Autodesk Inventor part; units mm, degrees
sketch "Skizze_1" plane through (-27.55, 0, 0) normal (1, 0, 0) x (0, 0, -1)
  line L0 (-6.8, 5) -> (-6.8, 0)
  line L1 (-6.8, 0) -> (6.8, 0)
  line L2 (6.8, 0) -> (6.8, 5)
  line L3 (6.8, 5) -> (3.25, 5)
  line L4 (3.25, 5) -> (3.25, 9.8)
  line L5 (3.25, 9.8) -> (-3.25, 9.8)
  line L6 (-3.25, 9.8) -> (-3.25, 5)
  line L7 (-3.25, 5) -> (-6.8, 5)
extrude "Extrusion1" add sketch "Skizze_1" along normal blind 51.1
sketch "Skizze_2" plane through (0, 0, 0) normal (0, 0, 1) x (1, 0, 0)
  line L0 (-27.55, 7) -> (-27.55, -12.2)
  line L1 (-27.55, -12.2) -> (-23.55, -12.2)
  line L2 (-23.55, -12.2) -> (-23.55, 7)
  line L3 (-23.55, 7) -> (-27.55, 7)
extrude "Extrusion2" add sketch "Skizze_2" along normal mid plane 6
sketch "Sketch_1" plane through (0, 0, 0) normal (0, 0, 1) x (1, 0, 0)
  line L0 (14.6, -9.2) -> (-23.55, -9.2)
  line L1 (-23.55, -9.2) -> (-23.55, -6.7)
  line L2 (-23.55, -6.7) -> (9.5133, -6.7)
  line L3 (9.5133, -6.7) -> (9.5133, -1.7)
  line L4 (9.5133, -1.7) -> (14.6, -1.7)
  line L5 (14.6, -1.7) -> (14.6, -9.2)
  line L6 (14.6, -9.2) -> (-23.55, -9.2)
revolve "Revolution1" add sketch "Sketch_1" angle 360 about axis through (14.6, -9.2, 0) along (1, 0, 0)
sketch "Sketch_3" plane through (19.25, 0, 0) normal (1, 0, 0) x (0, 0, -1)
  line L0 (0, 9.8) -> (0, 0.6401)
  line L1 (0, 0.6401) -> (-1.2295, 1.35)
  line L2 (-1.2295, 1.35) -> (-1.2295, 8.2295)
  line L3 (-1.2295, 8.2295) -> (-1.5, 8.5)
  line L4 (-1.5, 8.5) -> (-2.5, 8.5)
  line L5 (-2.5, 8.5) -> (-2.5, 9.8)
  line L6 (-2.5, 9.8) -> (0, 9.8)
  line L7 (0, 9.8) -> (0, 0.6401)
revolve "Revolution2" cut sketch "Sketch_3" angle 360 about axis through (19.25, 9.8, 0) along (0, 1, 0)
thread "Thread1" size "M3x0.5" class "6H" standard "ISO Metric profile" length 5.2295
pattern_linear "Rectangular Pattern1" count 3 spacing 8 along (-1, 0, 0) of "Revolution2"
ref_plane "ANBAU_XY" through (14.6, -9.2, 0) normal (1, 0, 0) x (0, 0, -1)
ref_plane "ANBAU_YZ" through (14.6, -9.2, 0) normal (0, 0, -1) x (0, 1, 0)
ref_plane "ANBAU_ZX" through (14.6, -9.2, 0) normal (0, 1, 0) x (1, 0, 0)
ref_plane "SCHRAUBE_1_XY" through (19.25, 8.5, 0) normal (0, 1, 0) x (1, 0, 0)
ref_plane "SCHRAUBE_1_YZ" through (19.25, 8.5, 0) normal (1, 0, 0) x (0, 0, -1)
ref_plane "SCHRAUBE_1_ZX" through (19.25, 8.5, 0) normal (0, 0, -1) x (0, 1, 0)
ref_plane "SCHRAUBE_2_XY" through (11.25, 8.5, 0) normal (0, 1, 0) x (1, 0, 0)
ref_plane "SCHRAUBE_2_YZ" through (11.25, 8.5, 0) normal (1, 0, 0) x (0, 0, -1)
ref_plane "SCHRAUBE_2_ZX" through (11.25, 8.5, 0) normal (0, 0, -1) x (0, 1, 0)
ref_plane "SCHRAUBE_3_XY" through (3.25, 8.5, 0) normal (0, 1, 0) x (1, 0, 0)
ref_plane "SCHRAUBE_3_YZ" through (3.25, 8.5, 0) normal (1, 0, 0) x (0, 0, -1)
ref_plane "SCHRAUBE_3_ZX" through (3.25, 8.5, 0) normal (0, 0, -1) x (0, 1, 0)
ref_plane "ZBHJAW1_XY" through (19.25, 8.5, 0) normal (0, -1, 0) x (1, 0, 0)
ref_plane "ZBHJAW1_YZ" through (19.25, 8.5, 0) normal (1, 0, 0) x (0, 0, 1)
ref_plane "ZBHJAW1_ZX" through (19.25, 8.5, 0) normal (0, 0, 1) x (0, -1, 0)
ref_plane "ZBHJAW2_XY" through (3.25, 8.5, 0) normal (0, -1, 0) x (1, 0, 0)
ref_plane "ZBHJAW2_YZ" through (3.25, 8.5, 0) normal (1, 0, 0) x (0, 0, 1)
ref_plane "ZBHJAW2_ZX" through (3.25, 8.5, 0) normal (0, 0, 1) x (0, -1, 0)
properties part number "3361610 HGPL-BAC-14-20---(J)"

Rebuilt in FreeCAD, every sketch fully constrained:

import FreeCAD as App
import Part
import Sketcher

V = App.Vector
Q = App.Units.Quantity


def add_polygon(sketch, points):
    """Adds a closed chain of lines whose ends are joined by coincident constraints."""
    first, n = sketch.GeometryCount, len(points)
    for a, b in zip(points, points[1:] + points[:1]):
        sketch.addGeometry(Part.LineSegment(App.Vector(*a, 0), App.Vector(*b, 0)), False)
    for i in range(n):
        sketch.addConstraint(Sketcher.Constraint("Coincident", first + i, 2, first + (i + 1) % n, 1))

doc = App.newDocument("Part")
params = doc.addObject("Spreadsheet::Sheet", "Params")
for row, (alias, value) in enumerate([
    ("sketch1_width", "5 mm"),
    ("sketch1_width2", "4.8 mm"),
    ("sketch1_height", "13.6 mm"),
    ("sketch1_height2", "6.5 mm"),
    ("pad1_length", "51.1 mm"),
    ("sketch2_width", "4 mm"),
    ("sketch2_height", "19.2 mm"),
    ("pad2_length", "6 mm"),
    ("sketch3_height", "5 mm"),
    ("sketch3_height2", "7.5 mm"),
    ("sketch3_width", "38.15 mm"),
    ("revolution_angle", "360 deg"),
    ("sketch4_height", "1 mm"),
    ("sketch4_width", "1.3 mm"),
    ("sketch4_height2", "2.5 mm"),
    ("sketch4_width2", "9.16 mm"),
    ("groove_angle", "360 deg"),
    ("linearpattern_pitch", "8 mm"),
], start=1):
    params.set(f"A{row}", alias)
    params.set(f"B{row}", "=" + value)
    params.setAlias(f"B{row}", alias)

body = doc.addObject("PartDesign::Body", "Body")

sketch1 = body.newObject("Sketcher::SketchObject", "Sketch")
sketch1.AttachmentSupport = (doc.getObject("YZ_Plane"), [""])
sketch1.MapMode = "FlatFace"
sketch1.AttachmentOffset = App.Placement(V(0, 0, -27.55), App.Rotation())
add_polygon(sketch1, [(5, 3.2), (5, 6.8), (0, 6.8), (0, -6.8), (5, -6.8), (5, -3.2), (9.8, -3.2), (9.8, 3.2)])
sketch1.addConstraint(Sketcher.Constraint("Vertical", 0))
sketch1.addConstraint(Sketcher.Constraint("Horizontal", 1))
sketch1.addConstraint(Sketcher.Constraint("Vertical", 2))
sketch1.addConstraint(Sketcher.Constraint("Horizontal", 3))
sketch1.addConstraint(Sketcher.Constraint("Vertical", 4))
sketch1.addConstraint(Sketcher.Constraint("Horizontal", 5))
sketch1.addConstraint(Sketcher.Constraint("Vertical", 6))
sketch1.addConstraint(Sketcher.Constraint("Horizontal", 7))
sketch1.addConstraint(Sketcher.Constraint("Symmetric", 1, 2, 2, 2, -1, 1))
sketch1.addConstraint(Sketcher.Constraint("Symmetric", 4, 2, 7, 2, -1))
sketch1.addConstraint(Sketcher.Constraint("DistanceX", 1, 2, 1, 1, Q("5 mm")))
sketch1.addConstraint(Sketcher.Constraint("DistanceX", 5, 1, 5, 2, Q("4.8 mm")))
sketch1.addConstraint(Sketcher.Constraint("DistanceY", 2, 2, 2, 1, Q("13.6 mm")))
sketch1.addConstraint(Sketcher.Constraint("DistanceY", 6, 1, 6, 2, Q("6.5 mm")))
sketch1.setExpression("Constraints[18]", "Params.sketch1_width")
sketch1.setExpression("Constraints[19]", "Params.sketch1_width2")
sketch1.setExpression("Constraints[20]", "Params.sketch1_height")
sketch1.setExpression("Constraints[21]", "Params.sketch1_height2")
pad1 = body.newObject("PartDesign::Pad", "Pad")
pad1.Profile = sketch1
pad1.setExpression("Length", "Params.pad1_length")

sketch2 = body.newObject("Sketcher::SketchObject", "Sketch001")
sketch2.AttachmentSupport = (doc.getObject("XY_Plane"), [""])
sketch2.MapMode = "FlatFace"
add_polygon(sketch2, [(-23.6, 7), (-27.6, 7), (-27.6, -12.2), (-23.6, -12.2)])
sketch2.addConstraint(Sketcher.Constraint("Horizontal", 0))
sketch2.addConstraint(Sketcher.Constraint("Vertical", 1))
sketch2.addConstraint(Sketcher.Constraint("Horizontal", 2))
sketch2.addConstraint(Sketcher.Constraint("Vertical", 3))
sketch2.addConstraint(Sketcher.Constraint("DistanceX", 0, 2, 0, 1, Q("4 mm")))
sketch2.addConstraint(Sketcher.Constraint("DistanceY", 1, 2, 1, 1, Q("19.2 mm")))
sketch2.addConstraint(Sketcher.Constraint("DistanceY", -1, 1, 0, 2, Q("7 mm")))
sketch2.addConstraint(Sketcher.Constraint("DistanceX", 0, 2, -1, 1, Q("27.55 mm")))
sketch2.setExpression("Constraints[8]", "Params.sketch2_width")
sketch2.setExpression("Constraints[9]", "Params.sketch2_height")
pad2 = body.newObject("PartDesign::Pad", "Pad001")
pad2.Profile = sketch2
pad2.setExpression("Length", "Params.pad2_length")
pad2.Midplane = True

sketch3 = body.newObject("Sketcher::SketchObject", "Sketch002")
sketch3.AttachmentSupport = (doc.getObject("XY_Plane"), [""])
sketch3.MapMode = "FlatFace"
add_polygon(sketch3, [(-23.6, -9.2), (14.6, -9.2), (14.6, -1.7), (9.5, -1.7), (9.5, -6.7), (-23.6, -6.7)])
sketch3.addGeometry(Part.LineSegment(V(-23.6, -9.2, 0), V(14.6, -9.2, 0)), True)
sketch3.addConstraint(Sketcher.Constraint("Horizontal", 0))
sketch3.addConstraint(Sketcher.Constraint("Vertical", 1))
sketch3.addConstraint(Sketcher.Constraint("Horizontal", 2))
sketch3.addConstraint(Sketcher.Constraint("Vertical", 3))
sketch3.addConstraint(Sketcher.Constraint("Horizontal", 4))
sketch3.addConstraint(Sketcher.Constraint("Vertical", 5))
sketch3.addConstraint(Sketcher.Constraint("Horizontal", 6))
sketch3.addConstraint(Sketcher.Constraint("Coincident", 6, 1, 5, 2))
sketch3.addConstraint(Sketcher.Constraint("Vertical", 1, 2, 6, 2))
sketch3.addConstraint(Sketcher.Constraint("DistanceY", 3, 2, 3, 1, Q("5 mm")))
sketch3.addConstraint(Sketcher.Constraint("DistanceY", 1, 1, 1, 2, Q("7.5 mm")))
sketch3.addConstraint(Sketcher.Constraint("DistanceX", 0, 1, 0, 2, Q("38.15 mm")))
sketch3.addConstraint(Sketcher.Constraint("DistanceX", -1, 1, 0, 2, Q("14.6 mm")))
sketch3.addConstraint(Sketcher.Constraint("DistanceY", 0, 2, -1, 1, Q("9.2 mm")))
sketch3.addConstraint(Sketcher.Constraint("DistanceX", 2, 2, 2, 1, Q("5.0867 mm")))
sketch3.setExpression("Constraints[15]", "Params.sketch3_height")
sketch3.setExpression("Constraints[16]", "Params.sketch3_height2")
sketch3.setExpression("Constraints[17]", "Params.sketch3_width")
revolution = body.newObject("PartDesign::Revolution", "Revolution")
revolution.Profile = sketch3
revolution.ReferenceAxis = (sketch3, ["Axis0"])
revolution.setExpression("Angle", "Params.revolution_angle")

sketch4 = body.newObject("Sketcher::SketchObject", "Sketch003")
sketch4.AttachmentSupport = (doc.getObject("YZ_Plane"), [""])
sketch4.MapMode = "FlatFace"
sketch4.AttachmentOffset = App.Placement(V(0, 0, 19.25), App.Rotation())
add_polygon(sketch4, [(0.64, 0), (9.8, 0), (9.8, 2.5), (8.5, 2.5), (8.5, 1.5), (8.23, 1.23), (1.35, 1.23)])
sketch4.addConstraint(Sketcher.Constraint("Horizontal", 0))
sketch4.addConstraint(Sketcher.Constraint("Vertical", 1))
sketch4.addConstraint(Sketcher.Constraint("Horizontal", 2))
sketch4.addConstraint(Sketcher.Constraint("Vertical", 3))
sketch4.addConstraint(Sketcher.Constraint("Horizontal", 5))
sketch4.addConstraint(Sketcher.Constraint("PointOnObject", 0, 2, -1))
sketch4.addConstraint(Sketcher.Constraint("DistanceY", 3, 2, 3, 1, Q("1 mm")))
sketch4.addConstraint(Sketcher.Constraint("Angle", 4, Q("-135 deg")))
sketch4.addConstraint(Sketcher.Constraint("DistanceX", 2, 2, 2, 1, Q("1.3 mm")))
sketch4.addConstraint(Sketcher.Constraint("DistanceY", 1, 1, 1, 2, Q("2.5 mm")))
sketch4.addConstraint(Sketcher.Constraint("DistanceX", 0, 1, 0, 2, Q("9.16 mm")))
sketch4.addConstraint(Sketcher.Constraint("DistanceX", -1, 1, 0, 2, Q("9.8 mm")))
sketch4.addConstraint(Sketcher.Constraint("DistanceX", -1, 1, 5, 2, Q("1.35 mm")))
sketch4.addConstraint(Sketcher.Constraint("DistanceX", 5, 2, 5, 1, Q("6.8795 mm")))
sketch4.setExpression("Constraints[13]", "Params.sketch4_height")
sketch4.setExpression("Constraints[15]", "Params.sketch4_width")
sketch4.setExpression("Constraints[16]", "Params.sketch4_height2")
sketch4.setExpression("Constraints[17]", "Params.sketch4_width2")
groove = body.newObject("PartDesign::Groove", "Groove")
groove.Profile = sketch4
groove.ReferenceAxis = (sketch4, ["H_Axis"])
groove.setExpression("Angle", "Params.groove_angle")
doc.recompute()

linearpattern = body.newObject("PartDesign::LinearPattern", "LinearPattern")
linearpattern.Originals = [groove]
linearpattern.Direction = (doc.getObject("X_Axis"), [""])
linearpattern.Mode = "offset"
linearpattern.setExpression("Offset", "Params.linearpattern_pitch")
linearpattern.Occurrences = 3
linearpattern.Reversed = True
body.Tip = linearpattern

doc.recompute()
